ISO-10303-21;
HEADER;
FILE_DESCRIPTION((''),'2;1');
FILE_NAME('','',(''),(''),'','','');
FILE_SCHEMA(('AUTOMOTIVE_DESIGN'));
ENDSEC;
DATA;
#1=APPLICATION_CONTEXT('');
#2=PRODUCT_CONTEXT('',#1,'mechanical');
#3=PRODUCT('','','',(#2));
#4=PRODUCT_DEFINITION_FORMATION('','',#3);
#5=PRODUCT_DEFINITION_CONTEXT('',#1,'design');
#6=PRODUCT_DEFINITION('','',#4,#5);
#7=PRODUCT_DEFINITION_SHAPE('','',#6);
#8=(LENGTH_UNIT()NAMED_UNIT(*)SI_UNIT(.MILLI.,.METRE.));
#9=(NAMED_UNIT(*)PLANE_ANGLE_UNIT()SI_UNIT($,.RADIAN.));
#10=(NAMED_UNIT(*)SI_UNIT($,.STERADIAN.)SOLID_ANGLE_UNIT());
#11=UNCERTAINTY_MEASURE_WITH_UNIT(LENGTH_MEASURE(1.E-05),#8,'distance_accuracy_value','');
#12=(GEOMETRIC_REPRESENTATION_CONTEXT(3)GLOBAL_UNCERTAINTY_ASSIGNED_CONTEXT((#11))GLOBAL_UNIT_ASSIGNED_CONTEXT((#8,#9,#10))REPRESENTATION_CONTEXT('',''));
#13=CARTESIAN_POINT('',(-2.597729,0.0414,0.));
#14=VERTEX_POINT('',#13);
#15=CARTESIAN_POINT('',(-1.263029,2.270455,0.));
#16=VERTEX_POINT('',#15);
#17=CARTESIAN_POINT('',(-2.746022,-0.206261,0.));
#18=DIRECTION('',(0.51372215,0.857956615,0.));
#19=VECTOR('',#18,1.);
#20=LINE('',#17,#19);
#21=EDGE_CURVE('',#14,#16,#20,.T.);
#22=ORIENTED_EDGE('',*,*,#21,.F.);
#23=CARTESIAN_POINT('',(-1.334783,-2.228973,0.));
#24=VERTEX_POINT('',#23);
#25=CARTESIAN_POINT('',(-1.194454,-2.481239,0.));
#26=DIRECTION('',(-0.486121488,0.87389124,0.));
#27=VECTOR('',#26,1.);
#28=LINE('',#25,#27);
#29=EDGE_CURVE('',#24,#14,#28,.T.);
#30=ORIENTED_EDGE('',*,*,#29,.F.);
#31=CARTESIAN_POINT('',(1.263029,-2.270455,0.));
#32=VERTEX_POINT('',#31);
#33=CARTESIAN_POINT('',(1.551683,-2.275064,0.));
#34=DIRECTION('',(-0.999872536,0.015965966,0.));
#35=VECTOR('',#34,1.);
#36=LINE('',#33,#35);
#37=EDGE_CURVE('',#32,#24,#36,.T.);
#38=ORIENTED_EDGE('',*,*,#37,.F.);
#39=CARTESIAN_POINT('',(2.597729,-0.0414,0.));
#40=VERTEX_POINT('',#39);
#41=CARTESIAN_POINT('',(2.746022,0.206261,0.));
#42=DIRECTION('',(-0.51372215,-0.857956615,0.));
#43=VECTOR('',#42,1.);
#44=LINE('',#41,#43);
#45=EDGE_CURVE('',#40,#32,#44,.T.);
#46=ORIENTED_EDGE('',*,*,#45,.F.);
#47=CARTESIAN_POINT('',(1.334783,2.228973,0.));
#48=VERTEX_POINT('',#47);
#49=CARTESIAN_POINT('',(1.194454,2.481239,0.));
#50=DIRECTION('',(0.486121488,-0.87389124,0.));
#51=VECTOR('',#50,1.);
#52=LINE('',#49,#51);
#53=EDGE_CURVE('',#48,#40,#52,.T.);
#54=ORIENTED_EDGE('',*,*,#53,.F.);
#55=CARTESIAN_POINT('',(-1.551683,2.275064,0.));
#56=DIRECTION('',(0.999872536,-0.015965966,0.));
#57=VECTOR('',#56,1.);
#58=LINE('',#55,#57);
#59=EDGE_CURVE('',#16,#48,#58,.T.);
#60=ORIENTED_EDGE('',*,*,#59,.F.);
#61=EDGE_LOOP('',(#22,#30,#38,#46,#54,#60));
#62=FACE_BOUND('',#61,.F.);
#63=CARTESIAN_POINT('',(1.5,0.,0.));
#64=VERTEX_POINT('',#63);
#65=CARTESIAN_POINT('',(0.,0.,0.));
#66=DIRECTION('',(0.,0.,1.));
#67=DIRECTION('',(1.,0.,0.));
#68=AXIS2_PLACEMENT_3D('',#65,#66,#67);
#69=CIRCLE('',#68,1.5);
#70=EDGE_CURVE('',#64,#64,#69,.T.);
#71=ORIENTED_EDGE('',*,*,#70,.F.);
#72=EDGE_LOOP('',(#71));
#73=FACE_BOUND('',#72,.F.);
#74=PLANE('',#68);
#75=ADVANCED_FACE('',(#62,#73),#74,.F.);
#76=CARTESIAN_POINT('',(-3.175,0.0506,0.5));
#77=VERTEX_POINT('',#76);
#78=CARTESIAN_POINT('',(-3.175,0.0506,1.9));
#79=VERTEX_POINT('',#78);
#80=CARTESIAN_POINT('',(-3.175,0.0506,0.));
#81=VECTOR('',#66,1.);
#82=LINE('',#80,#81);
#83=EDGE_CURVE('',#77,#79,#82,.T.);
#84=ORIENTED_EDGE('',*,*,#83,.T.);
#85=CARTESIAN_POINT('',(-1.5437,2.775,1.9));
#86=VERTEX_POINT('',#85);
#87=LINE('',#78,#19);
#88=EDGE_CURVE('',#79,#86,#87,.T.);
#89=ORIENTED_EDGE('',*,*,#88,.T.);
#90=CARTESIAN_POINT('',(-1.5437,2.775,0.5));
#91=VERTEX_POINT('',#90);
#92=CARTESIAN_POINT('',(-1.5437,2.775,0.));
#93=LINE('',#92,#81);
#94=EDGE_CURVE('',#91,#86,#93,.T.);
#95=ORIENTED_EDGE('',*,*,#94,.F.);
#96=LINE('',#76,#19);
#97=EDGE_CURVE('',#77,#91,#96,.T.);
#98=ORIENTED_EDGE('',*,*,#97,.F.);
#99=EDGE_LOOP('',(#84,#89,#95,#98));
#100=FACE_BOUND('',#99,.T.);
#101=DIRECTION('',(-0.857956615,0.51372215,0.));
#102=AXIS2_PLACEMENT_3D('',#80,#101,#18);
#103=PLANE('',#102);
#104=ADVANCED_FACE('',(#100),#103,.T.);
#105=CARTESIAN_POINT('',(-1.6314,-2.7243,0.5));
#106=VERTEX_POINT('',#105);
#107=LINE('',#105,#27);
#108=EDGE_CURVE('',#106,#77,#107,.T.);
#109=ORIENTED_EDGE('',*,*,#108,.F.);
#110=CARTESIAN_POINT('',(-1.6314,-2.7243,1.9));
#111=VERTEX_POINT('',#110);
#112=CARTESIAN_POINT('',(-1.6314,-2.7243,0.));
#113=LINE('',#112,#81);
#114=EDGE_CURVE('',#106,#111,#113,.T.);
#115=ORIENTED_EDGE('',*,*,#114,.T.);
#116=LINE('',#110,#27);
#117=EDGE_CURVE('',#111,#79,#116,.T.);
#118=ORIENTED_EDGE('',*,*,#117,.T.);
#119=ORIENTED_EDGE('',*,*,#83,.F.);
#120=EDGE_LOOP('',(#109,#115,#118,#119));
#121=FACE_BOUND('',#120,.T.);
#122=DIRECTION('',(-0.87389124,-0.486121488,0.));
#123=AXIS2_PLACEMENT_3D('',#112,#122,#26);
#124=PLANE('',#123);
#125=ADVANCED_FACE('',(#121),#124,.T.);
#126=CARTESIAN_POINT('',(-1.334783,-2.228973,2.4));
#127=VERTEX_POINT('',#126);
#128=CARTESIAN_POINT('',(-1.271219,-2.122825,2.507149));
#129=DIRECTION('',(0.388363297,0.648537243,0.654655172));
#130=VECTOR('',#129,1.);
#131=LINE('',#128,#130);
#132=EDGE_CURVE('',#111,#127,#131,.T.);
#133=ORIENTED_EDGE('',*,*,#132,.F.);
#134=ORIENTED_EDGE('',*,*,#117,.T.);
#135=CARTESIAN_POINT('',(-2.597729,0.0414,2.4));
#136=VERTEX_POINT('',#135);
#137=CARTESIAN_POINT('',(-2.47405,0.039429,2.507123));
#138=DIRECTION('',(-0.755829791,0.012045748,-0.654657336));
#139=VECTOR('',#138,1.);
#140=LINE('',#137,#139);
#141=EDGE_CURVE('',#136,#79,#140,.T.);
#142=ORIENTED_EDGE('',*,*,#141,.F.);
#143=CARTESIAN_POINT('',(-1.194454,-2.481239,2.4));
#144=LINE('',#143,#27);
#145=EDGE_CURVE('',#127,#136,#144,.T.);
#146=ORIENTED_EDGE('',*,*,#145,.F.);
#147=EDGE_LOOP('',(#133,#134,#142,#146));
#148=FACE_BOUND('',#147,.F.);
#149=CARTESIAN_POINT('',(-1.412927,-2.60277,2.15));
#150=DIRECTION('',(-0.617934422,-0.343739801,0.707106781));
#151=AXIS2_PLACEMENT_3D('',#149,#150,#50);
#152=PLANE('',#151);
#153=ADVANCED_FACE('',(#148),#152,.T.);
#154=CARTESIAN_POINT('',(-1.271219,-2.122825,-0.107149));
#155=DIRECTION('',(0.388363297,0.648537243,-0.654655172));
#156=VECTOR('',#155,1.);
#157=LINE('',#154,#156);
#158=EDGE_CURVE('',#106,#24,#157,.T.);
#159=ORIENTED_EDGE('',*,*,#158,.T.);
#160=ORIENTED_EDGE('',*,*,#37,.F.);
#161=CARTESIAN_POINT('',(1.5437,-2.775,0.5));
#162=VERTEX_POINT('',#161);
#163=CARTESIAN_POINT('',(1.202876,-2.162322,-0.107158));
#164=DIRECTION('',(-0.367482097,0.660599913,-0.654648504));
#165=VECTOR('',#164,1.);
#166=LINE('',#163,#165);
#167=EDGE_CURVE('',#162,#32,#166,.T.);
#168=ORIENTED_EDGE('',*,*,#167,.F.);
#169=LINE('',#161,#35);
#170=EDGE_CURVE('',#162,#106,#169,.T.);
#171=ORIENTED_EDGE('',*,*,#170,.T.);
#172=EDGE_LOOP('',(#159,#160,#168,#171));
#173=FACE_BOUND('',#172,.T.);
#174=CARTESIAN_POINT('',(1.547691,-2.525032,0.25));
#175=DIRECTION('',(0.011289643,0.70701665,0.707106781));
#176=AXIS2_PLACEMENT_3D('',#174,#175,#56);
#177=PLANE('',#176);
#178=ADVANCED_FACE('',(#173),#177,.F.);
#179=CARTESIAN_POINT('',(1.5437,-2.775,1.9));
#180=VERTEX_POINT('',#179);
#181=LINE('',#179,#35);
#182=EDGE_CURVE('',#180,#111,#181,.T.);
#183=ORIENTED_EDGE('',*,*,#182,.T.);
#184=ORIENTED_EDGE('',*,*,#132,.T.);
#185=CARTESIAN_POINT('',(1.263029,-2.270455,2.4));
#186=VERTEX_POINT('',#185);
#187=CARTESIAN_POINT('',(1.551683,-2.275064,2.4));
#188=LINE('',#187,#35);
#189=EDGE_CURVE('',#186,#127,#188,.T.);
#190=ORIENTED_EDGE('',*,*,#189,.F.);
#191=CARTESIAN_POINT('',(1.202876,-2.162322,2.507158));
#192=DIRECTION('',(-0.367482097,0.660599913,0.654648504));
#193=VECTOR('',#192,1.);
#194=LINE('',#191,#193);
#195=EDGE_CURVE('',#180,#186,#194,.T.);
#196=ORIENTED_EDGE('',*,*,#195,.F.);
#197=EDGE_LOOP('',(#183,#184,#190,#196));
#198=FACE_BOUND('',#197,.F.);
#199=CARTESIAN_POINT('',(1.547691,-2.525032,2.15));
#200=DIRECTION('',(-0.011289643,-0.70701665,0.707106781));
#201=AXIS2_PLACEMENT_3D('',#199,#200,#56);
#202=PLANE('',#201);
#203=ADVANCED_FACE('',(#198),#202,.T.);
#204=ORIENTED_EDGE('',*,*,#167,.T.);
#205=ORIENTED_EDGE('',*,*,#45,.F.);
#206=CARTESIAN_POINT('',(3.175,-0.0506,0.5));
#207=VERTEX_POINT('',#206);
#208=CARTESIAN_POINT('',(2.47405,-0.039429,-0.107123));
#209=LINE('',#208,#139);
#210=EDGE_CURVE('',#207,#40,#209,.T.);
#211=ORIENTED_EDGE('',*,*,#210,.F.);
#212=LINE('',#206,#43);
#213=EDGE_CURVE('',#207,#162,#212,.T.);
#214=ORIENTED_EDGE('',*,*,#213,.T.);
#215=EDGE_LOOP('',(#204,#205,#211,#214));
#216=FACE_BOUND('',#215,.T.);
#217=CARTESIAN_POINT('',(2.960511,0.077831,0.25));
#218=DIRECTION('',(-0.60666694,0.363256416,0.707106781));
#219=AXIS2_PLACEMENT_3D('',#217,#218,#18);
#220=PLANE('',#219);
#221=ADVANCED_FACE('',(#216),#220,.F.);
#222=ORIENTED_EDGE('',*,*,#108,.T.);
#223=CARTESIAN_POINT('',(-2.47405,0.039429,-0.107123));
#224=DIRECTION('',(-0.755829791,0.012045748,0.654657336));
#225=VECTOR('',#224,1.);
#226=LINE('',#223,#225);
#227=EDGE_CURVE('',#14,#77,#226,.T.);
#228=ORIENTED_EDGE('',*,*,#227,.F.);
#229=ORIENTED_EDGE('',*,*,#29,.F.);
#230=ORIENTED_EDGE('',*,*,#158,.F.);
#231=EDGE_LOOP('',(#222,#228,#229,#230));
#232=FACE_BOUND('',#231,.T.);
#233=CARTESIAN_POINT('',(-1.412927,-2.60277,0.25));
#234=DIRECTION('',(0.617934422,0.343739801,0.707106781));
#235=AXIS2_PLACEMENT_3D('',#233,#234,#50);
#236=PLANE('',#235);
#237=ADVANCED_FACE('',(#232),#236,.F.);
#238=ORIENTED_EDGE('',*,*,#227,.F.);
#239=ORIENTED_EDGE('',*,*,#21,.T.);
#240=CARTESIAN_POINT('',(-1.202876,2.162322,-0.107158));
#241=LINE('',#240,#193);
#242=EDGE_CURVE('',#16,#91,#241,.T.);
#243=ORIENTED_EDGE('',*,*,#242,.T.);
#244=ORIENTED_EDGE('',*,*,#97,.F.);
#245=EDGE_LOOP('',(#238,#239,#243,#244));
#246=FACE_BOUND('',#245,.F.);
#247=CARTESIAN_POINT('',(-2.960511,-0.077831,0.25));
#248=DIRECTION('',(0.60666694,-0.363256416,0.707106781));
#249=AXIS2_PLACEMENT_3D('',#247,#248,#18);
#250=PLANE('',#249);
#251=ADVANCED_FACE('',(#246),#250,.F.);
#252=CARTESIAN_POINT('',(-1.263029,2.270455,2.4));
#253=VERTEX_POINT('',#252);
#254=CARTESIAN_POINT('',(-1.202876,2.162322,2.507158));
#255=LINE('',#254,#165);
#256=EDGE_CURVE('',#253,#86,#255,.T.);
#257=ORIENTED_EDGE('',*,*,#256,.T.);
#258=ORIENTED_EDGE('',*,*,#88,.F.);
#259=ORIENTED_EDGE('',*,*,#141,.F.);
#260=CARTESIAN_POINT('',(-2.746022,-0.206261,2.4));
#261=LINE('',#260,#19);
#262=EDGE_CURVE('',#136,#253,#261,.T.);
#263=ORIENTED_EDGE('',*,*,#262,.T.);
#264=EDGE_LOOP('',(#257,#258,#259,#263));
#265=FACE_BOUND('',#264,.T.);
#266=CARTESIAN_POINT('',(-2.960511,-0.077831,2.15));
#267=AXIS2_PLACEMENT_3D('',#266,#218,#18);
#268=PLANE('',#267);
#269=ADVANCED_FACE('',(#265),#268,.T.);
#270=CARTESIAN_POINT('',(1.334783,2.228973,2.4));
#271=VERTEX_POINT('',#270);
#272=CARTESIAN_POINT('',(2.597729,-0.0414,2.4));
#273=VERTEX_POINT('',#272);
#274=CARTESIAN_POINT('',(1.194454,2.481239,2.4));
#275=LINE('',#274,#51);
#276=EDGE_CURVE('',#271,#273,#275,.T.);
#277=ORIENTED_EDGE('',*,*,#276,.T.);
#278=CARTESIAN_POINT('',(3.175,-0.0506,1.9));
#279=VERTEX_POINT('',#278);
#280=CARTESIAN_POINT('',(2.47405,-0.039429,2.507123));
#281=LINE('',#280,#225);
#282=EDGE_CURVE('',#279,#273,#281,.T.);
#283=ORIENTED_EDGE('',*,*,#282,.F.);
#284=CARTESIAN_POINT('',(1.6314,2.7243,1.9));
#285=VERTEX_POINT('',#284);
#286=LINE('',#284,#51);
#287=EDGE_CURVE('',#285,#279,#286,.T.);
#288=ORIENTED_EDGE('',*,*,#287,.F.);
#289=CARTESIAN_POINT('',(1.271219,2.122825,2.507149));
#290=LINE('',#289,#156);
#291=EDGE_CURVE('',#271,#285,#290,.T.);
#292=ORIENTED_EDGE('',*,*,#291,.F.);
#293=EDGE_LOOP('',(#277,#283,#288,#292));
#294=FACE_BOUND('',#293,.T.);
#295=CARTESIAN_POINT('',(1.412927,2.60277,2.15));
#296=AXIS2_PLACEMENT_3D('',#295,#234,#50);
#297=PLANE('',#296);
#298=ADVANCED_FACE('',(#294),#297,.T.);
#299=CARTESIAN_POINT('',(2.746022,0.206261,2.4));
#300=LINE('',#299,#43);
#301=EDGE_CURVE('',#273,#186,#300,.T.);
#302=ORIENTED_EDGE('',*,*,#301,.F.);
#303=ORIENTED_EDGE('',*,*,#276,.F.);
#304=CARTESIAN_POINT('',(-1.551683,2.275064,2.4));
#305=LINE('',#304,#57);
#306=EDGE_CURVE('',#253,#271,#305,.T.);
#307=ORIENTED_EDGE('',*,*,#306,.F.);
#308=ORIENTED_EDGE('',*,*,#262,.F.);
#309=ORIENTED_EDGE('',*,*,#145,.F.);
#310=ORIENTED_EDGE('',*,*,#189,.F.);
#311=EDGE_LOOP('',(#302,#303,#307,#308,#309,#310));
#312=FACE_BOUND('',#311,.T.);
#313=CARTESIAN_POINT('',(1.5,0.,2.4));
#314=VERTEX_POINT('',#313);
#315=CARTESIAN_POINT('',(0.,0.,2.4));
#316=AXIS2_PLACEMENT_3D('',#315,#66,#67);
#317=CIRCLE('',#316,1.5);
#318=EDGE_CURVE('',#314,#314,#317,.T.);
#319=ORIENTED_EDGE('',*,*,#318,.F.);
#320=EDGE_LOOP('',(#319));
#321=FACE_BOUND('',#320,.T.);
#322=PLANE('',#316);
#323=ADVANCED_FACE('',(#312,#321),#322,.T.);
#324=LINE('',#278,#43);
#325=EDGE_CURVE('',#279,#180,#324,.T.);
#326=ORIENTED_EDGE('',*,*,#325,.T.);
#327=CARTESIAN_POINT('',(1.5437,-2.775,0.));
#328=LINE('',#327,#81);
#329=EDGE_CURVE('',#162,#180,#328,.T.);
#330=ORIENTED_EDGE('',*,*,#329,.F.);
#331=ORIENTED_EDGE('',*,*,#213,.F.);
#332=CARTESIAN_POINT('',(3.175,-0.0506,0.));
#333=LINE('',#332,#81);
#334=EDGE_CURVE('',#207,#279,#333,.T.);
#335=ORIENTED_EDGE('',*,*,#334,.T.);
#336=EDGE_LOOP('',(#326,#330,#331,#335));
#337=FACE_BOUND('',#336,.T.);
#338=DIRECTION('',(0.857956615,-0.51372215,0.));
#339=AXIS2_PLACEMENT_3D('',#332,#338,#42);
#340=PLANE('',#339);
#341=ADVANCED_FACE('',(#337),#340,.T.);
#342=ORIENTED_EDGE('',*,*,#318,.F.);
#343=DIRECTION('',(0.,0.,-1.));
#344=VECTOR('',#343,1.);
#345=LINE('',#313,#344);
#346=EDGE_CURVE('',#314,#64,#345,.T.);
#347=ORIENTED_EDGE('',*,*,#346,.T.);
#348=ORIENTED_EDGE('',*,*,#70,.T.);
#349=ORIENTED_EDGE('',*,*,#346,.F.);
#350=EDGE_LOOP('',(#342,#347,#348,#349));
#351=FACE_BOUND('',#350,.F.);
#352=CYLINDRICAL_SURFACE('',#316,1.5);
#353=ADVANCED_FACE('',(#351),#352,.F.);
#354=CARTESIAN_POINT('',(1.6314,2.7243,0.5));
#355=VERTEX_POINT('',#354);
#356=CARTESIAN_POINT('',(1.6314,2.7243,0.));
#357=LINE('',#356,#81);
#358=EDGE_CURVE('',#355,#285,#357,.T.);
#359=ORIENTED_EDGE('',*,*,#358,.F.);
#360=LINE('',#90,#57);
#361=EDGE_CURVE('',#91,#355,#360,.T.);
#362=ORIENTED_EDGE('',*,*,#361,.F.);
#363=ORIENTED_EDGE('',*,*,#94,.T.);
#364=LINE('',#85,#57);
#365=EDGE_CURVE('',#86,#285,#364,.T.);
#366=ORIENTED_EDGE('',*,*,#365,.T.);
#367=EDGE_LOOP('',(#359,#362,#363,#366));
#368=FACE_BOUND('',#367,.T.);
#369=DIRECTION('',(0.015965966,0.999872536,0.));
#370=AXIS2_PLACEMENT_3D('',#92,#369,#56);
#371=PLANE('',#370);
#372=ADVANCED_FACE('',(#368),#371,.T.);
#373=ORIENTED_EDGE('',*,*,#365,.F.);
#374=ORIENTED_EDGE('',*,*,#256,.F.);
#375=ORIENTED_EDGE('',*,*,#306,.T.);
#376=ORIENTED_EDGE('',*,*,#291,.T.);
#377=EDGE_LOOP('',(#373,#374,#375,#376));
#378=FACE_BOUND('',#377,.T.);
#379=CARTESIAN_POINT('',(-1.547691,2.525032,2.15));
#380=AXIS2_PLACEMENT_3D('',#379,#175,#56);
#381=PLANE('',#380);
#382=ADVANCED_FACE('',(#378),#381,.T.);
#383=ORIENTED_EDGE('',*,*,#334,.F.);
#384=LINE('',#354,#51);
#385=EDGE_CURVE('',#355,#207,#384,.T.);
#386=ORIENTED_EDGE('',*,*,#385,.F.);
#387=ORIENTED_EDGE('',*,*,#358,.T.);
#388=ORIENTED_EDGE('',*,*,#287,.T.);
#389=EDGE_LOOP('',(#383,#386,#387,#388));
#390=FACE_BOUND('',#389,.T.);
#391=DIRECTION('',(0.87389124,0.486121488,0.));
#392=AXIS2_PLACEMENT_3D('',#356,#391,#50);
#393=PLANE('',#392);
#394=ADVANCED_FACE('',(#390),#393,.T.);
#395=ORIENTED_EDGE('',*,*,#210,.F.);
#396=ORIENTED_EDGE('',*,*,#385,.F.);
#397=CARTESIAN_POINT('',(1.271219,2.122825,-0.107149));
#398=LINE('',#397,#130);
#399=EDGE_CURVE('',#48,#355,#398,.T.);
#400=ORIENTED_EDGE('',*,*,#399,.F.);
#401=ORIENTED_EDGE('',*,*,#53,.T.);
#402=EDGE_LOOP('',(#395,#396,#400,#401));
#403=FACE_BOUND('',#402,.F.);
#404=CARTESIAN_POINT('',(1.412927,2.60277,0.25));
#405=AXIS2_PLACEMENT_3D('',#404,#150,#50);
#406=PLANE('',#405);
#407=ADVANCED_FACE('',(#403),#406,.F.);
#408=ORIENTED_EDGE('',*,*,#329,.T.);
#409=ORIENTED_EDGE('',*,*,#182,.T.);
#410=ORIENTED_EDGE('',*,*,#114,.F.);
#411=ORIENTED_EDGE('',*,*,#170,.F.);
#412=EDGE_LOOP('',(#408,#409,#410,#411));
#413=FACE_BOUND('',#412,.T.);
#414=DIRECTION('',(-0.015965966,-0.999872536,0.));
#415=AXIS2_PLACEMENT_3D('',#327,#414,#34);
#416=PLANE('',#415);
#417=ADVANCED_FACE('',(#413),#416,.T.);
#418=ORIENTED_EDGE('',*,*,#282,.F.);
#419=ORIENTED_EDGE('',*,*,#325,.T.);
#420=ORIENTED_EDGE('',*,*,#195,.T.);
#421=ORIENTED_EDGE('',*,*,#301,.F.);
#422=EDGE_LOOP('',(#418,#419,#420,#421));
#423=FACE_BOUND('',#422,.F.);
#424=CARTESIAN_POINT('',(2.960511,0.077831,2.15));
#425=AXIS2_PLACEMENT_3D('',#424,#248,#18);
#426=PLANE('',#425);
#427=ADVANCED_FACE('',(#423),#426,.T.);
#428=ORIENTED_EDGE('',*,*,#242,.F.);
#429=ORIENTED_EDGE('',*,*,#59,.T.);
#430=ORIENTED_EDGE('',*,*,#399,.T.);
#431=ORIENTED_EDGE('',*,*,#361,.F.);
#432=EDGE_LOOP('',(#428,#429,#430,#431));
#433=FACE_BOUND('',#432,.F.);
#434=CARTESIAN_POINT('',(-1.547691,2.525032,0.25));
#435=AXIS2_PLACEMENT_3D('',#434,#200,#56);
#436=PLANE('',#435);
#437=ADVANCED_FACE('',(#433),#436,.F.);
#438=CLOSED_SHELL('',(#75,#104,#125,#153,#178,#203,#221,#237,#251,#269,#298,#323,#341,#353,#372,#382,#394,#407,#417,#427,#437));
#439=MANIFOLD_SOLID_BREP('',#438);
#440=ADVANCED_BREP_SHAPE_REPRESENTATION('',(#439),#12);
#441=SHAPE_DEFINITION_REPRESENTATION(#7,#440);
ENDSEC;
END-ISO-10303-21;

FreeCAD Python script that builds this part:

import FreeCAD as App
import Part
import Sketcher
from FreeCAD import Vector


def edges_at(feature, points):
    """Names of the edges that pass closest to the given points."""
    edges = feature.Shape.Edges
    near = lambda p: min(range(len(edges)), key=lambda i: edges[i].distToShape(Part.Vertex(*p))[0])
    return sorted({f"Edge{near(p) + 1}" for p in points})

doc = App.newDocument("Part")
body = doc.addObject("PartDesign::Body", "Body")

sketch1 = body.newObject("Sketcher::SketchObject", "Sketch")
sketch1.AttachmentSupport = (doc.getObject("XY_Plane"), [""])
sketch1.MapMode = "FlatFace"
sketch1.addGeometry([
    Part.LineSegment(Vector(-1.6, -2.7, 0), Vector(1.5, -2.8, 0)),
    Part.LineSegment(Vector(1.5, -2.8, 0), Vector(3.2, -0.1, 0)),
    Part.LineSegment(Vector(3.2, -0.1, 0), Vector(1.6, 2.7, 0)),
    Part.LineSegment(Vector(1.6, 2.7, 0), Vector(-1.5, 2.8, 0)),
    Part.LineSegment(Vector(-1.5, 2.8, 0), Vector(-3.2, 0.1, 0)),
    Part.LineSegment(Vector(-3.2, 0.1, 0), Vector(-1.6, -2.7, 0)),
], False)
sketch1.addConstraint([
    Sketcher.Constraint("Coincident", 0, 2, 1, 1),
    Sketcher.Constraint("Coincident", 1, 2, 2, 1),
    Sketcher.Constraint("Coincident", 2, 2, 3, 1),
    Sketcher.Constraint("Coincident", 3, 2, 4, 1),
    Sketcher.Constraint("Coincident", 4, 2, 5, 1),
    Sketcher.Constraint("Coincident", 5, 2, 0, 1),
    Sketcher.Constraint("Symmetric", 0, 2, 3, 2, -1, 1),
    Sketcher.Constraint("Symmetric", 1, 2, 4, 2, -1, 1),
    Sketcher.Constraint("Symmetric", 2, 2, 5, 2, -1, 1),
    Sketcher.Constraint("Equal", 0, 1),
    Sketcher.Constraint("Equal", 1, 2),
    Sketcher.Constraint("DistanceY", 0, 2, 3, 2, 5.55),
    Sketcher.Constraint("DistanceX", 4, 2, 1, 2, 6.35),
    Sketcher.Constraint("DistanceY", 1, 2, 2, 2, 2.775),
    Sketcher.Constraint("DistanceX", 3, 2, 2, 2, 3.175),
])
pad1 = body.newObject("PartDesign::Pad", "Pad")
pad1.Profile = sketch1
pad1.Length = 2.4

sketch2 = body.newObject("Sketcher::SketchObject", "Sketch001")
sketch2.AttachmentSupport = (doc.getObject("XY_Plane"), [""])
sketch2.MapMode = "FlatFace"
sketch2.AttachmentOffset = App.Placement(Vector(0, 0, 2.4), App.Rotation())
sketch2.addGeometry(Part.Circle(Vector(0, 0, 0), Vector(0, 0, 1), 1.5), False)
sketch2.addConstraint([
    Sketcher.Constraint("Coincident", 0, 3, -1, 1),
    Sketcher.Constraint("Diameter", 0, 3.0),
])
pocket1 = body.newObject("PartDesign::Pocket", "Pocket")
pocket1.Profile = sketch2
pocket1.Length = 2.4
doc.recompute()

chamfer = body.newObject("PartDesign::Chamfer", "Chamfer")
chamfer.Base = (pocket1, edges_at(pocket1, [
    (2.359, -1.413, 2.4),
    (2.403, 1.337, 2.4),
    (0.044, 2.75, 2.4),
    (-2.359, 1.413, 2.4),
    (-2.403, -1.337, 2.4),
    (-0.044, -2.75, 2.4),
    (-0.044, -2.75, 0),
    (2.359, -1.413, 0),
    (2.403, 1.337, 0),
    (0.044, 2.75, 0),
    (-2.359, 1.413, 0),
    (-2.403, -1.337, 0),
]))
chamfer.Size = 0.5

doc.recompute()
